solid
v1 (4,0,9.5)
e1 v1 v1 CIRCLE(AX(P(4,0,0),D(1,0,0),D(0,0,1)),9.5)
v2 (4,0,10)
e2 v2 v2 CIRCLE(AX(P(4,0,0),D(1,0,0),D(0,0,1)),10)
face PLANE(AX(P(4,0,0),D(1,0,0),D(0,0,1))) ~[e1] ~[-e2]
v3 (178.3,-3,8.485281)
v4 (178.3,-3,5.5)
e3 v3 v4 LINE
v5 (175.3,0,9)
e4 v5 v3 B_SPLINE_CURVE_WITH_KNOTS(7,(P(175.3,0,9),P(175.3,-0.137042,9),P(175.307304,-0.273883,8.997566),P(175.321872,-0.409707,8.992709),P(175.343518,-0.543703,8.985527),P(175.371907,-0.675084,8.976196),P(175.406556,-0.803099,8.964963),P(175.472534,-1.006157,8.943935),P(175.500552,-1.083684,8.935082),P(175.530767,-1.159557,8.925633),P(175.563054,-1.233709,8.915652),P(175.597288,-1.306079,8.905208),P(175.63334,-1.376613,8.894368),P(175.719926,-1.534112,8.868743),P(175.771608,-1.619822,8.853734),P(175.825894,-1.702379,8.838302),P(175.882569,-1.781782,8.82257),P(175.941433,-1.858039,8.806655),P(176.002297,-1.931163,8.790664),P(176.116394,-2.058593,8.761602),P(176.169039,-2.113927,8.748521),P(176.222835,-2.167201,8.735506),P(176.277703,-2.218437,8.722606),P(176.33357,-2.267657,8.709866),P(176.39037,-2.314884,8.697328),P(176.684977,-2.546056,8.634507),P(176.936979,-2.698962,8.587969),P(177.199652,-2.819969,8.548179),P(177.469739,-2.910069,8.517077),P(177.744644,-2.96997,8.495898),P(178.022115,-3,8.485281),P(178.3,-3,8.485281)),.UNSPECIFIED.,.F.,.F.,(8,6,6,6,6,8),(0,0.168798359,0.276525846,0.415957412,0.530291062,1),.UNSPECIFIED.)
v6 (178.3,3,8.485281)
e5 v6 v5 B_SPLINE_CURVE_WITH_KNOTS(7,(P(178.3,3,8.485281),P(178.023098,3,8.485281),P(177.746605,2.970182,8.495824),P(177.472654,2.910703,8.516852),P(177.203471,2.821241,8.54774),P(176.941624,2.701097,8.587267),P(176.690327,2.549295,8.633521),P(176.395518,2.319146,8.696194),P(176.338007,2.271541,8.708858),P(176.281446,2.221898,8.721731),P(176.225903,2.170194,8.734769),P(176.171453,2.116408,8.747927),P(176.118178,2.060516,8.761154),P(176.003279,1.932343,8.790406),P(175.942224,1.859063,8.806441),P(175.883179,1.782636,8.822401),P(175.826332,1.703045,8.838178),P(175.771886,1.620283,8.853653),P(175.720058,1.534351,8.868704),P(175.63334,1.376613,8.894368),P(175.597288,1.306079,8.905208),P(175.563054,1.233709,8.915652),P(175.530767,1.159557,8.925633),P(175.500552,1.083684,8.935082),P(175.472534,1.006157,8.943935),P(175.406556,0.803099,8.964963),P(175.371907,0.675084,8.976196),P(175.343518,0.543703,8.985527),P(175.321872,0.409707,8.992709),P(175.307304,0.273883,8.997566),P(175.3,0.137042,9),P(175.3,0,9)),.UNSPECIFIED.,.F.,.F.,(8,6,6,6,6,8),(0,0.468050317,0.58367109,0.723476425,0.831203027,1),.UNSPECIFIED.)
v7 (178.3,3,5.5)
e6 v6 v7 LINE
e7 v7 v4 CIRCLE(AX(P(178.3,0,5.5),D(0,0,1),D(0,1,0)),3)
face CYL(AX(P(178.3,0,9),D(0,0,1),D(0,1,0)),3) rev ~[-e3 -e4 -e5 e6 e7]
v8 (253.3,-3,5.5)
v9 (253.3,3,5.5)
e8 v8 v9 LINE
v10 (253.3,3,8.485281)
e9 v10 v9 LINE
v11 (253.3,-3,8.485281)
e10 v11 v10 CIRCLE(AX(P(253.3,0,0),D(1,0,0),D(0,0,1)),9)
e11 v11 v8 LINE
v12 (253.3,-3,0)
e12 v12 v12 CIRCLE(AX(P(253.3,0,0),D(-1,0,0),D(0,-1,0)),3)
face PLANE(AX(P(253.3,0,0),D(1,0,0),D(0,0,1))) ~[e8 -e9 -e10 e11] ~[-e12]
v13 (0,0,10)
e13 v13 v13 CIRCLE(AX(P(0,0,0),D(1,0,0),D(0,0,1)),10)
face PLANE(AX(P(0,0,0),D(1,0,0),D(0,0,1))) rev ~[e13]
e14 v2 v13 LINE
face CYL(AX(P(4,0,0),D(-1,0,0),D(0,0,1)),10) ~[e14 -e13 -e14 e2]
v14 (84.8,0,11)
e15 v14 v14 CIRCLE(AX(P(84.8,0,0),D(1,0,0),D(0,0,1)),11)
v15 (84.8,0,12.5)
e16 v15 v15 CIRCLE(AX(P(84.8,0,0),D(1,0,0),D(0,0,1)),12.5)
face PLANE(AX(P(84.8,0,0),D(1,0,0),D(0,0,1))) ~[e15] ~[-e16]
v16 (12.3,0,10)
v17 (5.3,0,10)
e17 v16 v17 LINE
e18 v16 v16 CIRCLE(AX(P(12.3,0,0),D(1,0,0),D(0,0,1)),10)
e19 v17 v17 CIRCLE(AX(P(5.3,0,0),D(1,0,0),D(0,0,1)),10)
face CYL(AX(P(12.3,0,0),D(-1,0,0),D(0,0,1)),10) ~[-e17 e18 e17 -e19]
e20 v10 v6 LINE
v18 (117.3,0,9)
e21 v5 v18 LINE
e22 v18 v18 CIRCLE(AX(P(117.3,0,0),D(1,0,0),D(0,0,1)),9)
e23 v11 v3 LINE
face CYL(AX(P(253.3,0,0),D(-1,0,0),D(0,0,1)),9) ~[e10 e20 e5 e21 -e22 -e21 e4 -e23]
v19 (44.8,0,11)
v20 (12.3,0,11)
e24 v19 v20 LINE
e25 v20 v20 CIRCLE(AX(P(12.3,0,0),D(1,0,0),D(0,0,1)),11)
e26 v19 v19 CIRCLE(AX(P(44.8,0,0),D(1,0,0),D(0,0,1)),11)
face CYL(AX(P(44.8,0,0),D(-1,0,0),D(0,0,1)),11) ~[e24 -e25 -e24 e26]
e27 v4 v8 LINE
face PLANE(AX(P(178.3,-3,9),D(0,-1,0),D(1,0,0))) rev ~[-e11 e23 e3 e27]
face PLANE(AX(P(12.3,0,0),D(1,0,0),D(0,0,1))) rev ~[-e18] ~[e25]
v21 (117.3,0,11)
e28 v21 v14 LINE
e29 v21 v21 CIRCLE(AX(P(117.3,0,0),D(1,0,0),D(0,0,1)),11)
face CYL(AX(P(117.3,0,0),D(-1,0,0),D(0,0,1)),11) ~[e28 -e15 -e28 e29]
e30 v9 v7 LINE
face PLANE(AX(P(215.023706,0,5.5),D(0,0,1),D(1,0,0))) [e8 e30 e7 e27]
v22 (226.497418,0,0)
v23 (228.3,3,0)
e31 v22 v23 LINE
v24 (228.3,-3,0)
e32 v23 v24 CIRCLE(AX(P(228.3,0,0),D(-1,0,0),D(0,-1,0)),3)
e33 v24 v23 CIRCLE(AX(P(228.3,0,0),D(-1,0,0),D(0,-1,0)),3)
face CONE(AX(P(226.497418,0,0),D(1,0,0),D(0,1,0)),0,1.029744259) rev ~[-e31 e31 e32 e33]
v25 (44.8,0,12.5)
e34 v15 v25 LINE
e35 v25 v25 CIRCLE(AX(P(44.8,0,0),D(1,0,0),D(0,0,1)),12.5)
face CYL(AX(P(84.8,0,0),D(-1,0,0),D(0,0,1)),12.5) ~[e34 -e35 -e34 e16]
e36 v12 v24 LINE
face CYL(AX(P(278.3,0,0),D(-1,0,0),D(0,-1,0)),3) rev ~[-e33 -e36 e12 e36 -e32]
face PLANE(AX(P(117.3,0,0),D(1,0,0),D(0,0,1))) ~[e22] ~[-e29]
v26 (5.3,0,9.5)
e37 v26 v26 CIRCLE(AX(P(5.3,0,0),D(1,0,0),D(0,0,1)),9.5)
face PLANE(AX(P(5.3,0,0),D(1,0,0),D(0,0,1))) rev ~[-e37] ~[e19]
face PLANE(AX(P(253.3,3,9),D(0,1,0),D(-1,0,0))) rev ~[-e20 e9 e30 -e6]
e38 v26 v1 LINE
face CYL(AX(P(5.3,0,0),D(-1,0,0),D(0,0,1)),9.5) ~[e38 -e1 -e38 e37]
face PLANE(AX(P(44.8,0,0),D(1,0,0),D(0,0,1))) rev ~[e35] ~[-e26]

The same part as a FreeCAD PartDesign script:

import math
import FreeCAD as App
import Part
import Sketcher
from FreeCAD import Vector

doc = App.newDocument("Part")
params = doc.addObject("Spreadsheet::Sheet", "Params")
for row, (alias, value) in enumerate([
    ("sketch1_width", "136 mm"),
    ("sketch1_width2", "40 mm"),
    ("sketch1_width3", "7 mm"),
    ("sketch1_width4", "4 mm"),
    ("sketch1_height", "10 mm"),
    ("revolution_angle", "360 deg"),
    ("sketch2_radius", "3 mm"),
    ("sketch2_width", "75 mm"),
    ("pocket1_length", "3.5 mm"),
    ("sketch3_diameter", "6 mm"),
    ("hole_diameter", "6 mm"),
    ("hole_depth", "25 mm"),
], start=1):
    params.set(f"A{row}", alias)
    params.set(f"B{row}", "=" + value)
    params.setAlias(f"B{row}", alias)

body = doc.addObject("PartDesign::Body", "Body")

sketch1 = body.newObject("Sketcher::SketchObject", "Sketch")
sketch1.AttachmentSupport = (doc.getObject("XZ_Plane"), [""])
sketch1.MapMode = "FlatFace"
sketch1.addGeometry([
    Part.LineSegment(Vector(0, 10, 0), Vector(0, 0, 0)),
    Part.LineSegment(Vector(0, 0, 0), Vector(253.3, 0, 0)),
    Part.LineSegment(Vector(253.3, 0, 0), Vector(253.3, 9, 0)),
    Part.LineSegment(Vector(253.3, 9, 0), Vector(117.3, 9, 0)),
    Part.LineSegment(Vector(117.3, 9, 0), Vector(117.3, 11, 0)),
    Part.LineSegment(Vector(117.3, 11, 0), Vector(84.8, 11, 0)),
    Part.LineSegment(Vector(84.8, 11, 0), Vector(84.8, 12.5, 0)),
    Part.LineSegment(Vector(84.8, 12.5, 0), Vector(44.8, 12.5, 0)),
    Part.LineSegment(Vector(44.8, 12.5, 0), Vector(44.8, 11, 0)),
    Part.LineSegment(Vector(44.8, 11, 0), Vector(12.3, 11, 0)),
    Part.LineSegment(Vector(12.3, 11, 0), Vector(12.3, 10, 0)),
    Part.LineSegment(Vector(12.3, 10, 0), Vector(5.3, 10, 0)),
    Part.LineSegment(Vector(5.3, 10, 0), Vector(5.3, 9.5, 0)),
    Part.LineSegment(Vector(5.3, 9.5, 0), Vector(4, 9.5, 0)),
    Part.LineSegment(Vector(4, 9.5, 0), Vector(4, 10, 0)),
    Part.LineSegment(Vector(4, 10, 0), Vector(0, 10, 0)),
], False)
sketch1.addConstraint([
    Sketcher.Constraint("Coincident", 0, 2, 1, 1),
    Sketcher.Constraint("Coincident", 1, 2, 2, 1),
    Sketcher.Constraint("Coincident", 2, 2, 3, 1),
    Sketcher.Constraint("Coincident", 3, 2, 4, 1),
    Sketcher.Constraint("Coincident", 4, 2, 5, 1),
    Sketcher.Constraint("Coincident", 5, 2, 6, 1),
    Sketcher.Constraint("Coincident", 6, 2, 7, 1),
    Sketcher.Constraint("Coincident", 7, 2, 8, 1),
    Sketcher.Constraint("Coincident", 8, 2, 9, 1),
    Sketcher.Constraint("Coincident", 9, 2, 10, 1),
    Sketcher.Constraint("Coincident", 10, 2, 11, 1),
    Sketcher.Constraint("Coincident", 11, 2, 12, 1),
    Sketcher.Constraint("Coincident", 12, 2, 13, 1),
    Sketcher.Constraint("Coincident", 13, 2, 14, 1),
    Sketcher.Constraint("Coincident", 14, 2, 15, 1),
    Sketcher.Constraint("Coincident", 15, 2, 0, 1),
    Sketcher.Constraint("Vertical", 0),
    Sketcher.Constraint("Horizontal", 1),
    Sketcher.Constraint("Vertical", 2),
    Sketcher.Constraint("Horizontal", 3),
    Sketcher.Constraint("Vertical", 4),
    Sketcher.Constraint("Horizontal", 5),
    Sketcher.Constraint("Vertical", 6),
    Sketcher.Constraint("Horizontal", 7),
    Sketcher.Constraint("Vertical", 8),
    Sketcher.Constraint("Horizontal", 9),
    Sketcher.Constraint("Vertical", 10),
    Sketcher.Constraint("Horizontal", 11),
    Sketcher.Constraint("Vertical", 12),
    Sketcher.Constraint("Horizontal", 13),
    Sketcher.Constraint("Vertical", 14),
    Sketcher.Constraint("Horizontal", 15),
    Sketcher.Constraint("Coincident", 0, 2, -1, 1),
    Sketcher.Constraint("Horizontal", 5, 2, 8, 2),
    Sketcher.Constraint("Horizontal", 11, 2, 14, 2),
    Sketcher.Constraint("Equal", 5, 9),
    Sketcher.Constraint("DistanceX", 3, 2, 3, 1, 136.0),
    Sketcher.Constraint("DistanceX", 7, 2, 7, 1, 40.0),
    Sketcher.Constraint("DistanceX", 11, 2, 11, 1, 7.0),
    Sketcher.Constraint("DistanceX", 15, 2, 15, 1, 4.0),
    Sketcher.Constraint("DistanceY", 0, 2, 0, 1, 10.0),
    Sketcher.Constraint("DistanceY", 2, 1, 2, 2, 9.0),
    Sketcher.Constraint("DistanceY", 4, 1, 4, 2, 2.0),
    Sketcher.Constraint("DistanceX", 1, 1, 1, 2, 253.3),
    Sketcher.Constraint("DistanceX", 5, 2, 5, 1, 32.5),
    Sketcher.Constraint("DistanceY", 6, 1, 6, 2, 1.5),
    Sketcher.Constraint("DistanceY", 12, 2, 12, 1, 0.5),
])
sketch1.setExpression("Constraints[36]", "Params.sketch1_width")
sketch1.setExpression("Constraints[37]", "Params.sketch1_width2")
sketch1.setExpression("Constraints[38]", "Params.sketch1_width3")
sketch1.setExpression("Constraints[39]", "Params.sketch1_width4")
sketch1.setExpression("Constraints[40]", "Params.sketch1_height")
revolution = body.newObject("PartDesign::Revolution", "Revolution")
revolution.Profile = sketch1
revolution.ReferenceAxis = (sketch1, ["H_Axis"])
revolution.setExpression("Angle", "Params.revolution_angle")

sketch2 = body.newObject("Sketcher::SketchObject", "Sketch001")
sketch2.AttachmentSupport = (doc.getObject("XY_Plane"), [""])
sketch2.MapMode = "FlatFace"
sketch2.AttachmentOffset = App.Placement(Vector(0, 0, 9), App.Rotation())
sketch2.addGeometry([
    Part.LineSegment(Vector(178.3, -3, 0), Vector(253.3, -3, 0)),
    Part.LineSegment(Vector(253.3, -3, 0), Vector(253.3, 3, 0)),
    Part.LineSegment(Vector(253.3, 3, 0), Vector(178.3, 3, 0)),
    Part.ArcOfCircle(Part.Circle(Vector(178.3, 0, 0), Vector(0, 0, 1), 3), math.radians(90), math.radians(270)),
], False)
sketch2.addConstraint([
    Sketcher.Constraint("Coincident", 0, 2, 1, 1),
    Sketcher.Constraint("Coincident", 1, 2, 2, 1),
    Sketcher.Constraint("Tangent", 2, 2, 3, 1),
    Sketcher.Constraint("Tangent", 3, 2, 0, 1),
    Sketcher.Constraint("Horizontal", 0),
    Sketcher.Constraint("Vertical", 1),
    Sketcher.Constraint("Horizontal", 2),
    Sketcher.Constraint("PointOnObject", 3, 3, -1),
    Sketcher.Constraint("Radius", 3, 3.0),
    Sketcher.Constraint("DistanceX", 0, 1, 0, 2, 75.0),
    Sketcher.Constraint("DistanceX", -1, 1, 3, 3, 178.3),
])
sketch2.setExpression("Constraints[8]", "Params.sketch2_radius")
sketch2.setExpression("Constraints[9]", "Params.sketch2_width")
pocket1 = body.newObject("PartDesign::Pocket", "Pocket")
pocket1.Profile = sketch2
pocket1.setExpression("Length", "Params.pocket1_length")

sketch3 = body.newObject("Sketcher::SketchObject", "Sketch002")
sketch3.AttachmentSupport = (doc.getObject("YZ_Plane"), [""])
sketch3.MapMode = "FlatFace"
sketch3.AttachmentOffset = App.Placement(Vector(0, 0, 253.3), App.Rotation())
sketch3.addGeometry(Part.Circle(Vector(0, 0, 0), Vector(0, 0, 1), 3), False)
sketch3.addConstraint([
    Sketcher.Constraint("Coincident", 0, 3, -1, 1),
    Sketcher.Constraint("Diameter", 0, 6.0),
])
sketch3.setExpression("Constraints[1]", "Params.sketch3_diameter")
doc.recompute()
hole = body.newObject("PartDesign::Hole", "Hole")
hole.Profile = sketch3
hole.ThreadType = "None"
hole.setExpression("Diameter", "Params.hole_diameter")
hole.DepthType = "Dimension"
hole.setExpression("Depth", "Params.hole_depth")
hole.DrillPoint = "Angled"
hole.DrillPointAngle = 118

doc.recompute()
